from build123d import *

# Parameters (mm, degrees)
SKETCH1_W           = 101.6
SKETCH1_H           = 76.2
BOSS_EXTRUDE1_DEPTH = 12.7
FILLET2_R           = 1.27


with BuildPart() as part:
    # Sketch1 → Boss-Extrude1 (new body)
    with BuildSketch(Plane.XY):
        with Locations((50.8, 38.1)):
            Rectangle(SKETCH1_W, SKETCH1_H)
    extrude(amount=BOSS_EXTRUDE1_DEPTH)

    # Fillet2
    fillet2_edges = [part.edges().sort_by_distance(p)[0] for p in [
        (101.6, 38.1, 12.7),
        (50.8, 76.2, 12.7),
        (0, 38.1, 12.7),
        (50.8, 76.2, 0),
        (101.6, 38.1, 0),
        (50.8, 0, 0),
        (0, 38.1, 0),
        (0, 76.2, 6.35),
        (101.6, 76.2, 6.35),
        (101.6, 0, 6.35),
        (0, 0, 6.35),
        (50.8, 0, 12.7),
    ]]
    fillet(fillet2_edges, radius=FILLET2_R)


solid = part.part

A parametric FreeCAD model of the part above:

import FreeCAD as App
import Part
import Sketcher

V = App.Vector
Q = App.Units.Quantity

doc = App.newDocument("Part")
body = doc.addObject("PartDesign::Body", "Body")

# Sketch on XY plane
sketch1 = body.newObject("Sketcher::SketchObject", "Sketch")
sketch1.AttachmentSupport = (doc.getObject("XY_Plane"), [""])
sketch1.MapMode = "FlatFace"
sketch1.addGeometry([
    Part.LineSegment(V(0, 76.2, 0), V(0, 0, 0)),
    Part.LineSegment(V(0, 0, 0), V(101.6, 0, 0)),
    Part.LineSegment(V(101.6, 0, 0), V(101.6, 76.2, 0)),
    Part.LineSegment(V(101.6, 76.2, 0), V(0, 76.2, 0)),
], False)
sketch1.addConstraint([
    Sketcher.Constraint("Coincident", 0, 2, 1, 1),
    Sketcher.Constraint("Coincident", 1, 2, 2, 1),
    Sketcher.Constraint("Coincident", 2, 2, 3, 1),
    Sketcher.Constraint("Coincident", 3, 2, 0, 1),
    Sketcher.Constraint("Vertical", 0),
    Sketcher.Constraint("Horizontal", 1),
    Sketcher.Constraint("Vertical", 2),
    Sketcher.Constraint("Horizontal", 3),
    Sketcher.Constraint("Coincident", 0, 2, -1, 1),
    Sketcher.Constraint("DistanceX", 1, 1, 1, 2, Q("4 in")),
    Sketcher.Constraint("DistanceY", 0, 2, 0, 1, Q("3 in")),
])
pad1 = body.newObject("PartDesign::Pad", "Pad")
pad1.Profile = sketch1
pad1.Length = Q("0.5 in")
doc.recompute()

fillet = body.newObject("PartDesign::Fillet", "Fillet")
fillet.Base = (pad1, ["Edge1"])
fillet.UseAllEdges = True
fillet.Radius = Q("0.05 in")

doc.recompute()
